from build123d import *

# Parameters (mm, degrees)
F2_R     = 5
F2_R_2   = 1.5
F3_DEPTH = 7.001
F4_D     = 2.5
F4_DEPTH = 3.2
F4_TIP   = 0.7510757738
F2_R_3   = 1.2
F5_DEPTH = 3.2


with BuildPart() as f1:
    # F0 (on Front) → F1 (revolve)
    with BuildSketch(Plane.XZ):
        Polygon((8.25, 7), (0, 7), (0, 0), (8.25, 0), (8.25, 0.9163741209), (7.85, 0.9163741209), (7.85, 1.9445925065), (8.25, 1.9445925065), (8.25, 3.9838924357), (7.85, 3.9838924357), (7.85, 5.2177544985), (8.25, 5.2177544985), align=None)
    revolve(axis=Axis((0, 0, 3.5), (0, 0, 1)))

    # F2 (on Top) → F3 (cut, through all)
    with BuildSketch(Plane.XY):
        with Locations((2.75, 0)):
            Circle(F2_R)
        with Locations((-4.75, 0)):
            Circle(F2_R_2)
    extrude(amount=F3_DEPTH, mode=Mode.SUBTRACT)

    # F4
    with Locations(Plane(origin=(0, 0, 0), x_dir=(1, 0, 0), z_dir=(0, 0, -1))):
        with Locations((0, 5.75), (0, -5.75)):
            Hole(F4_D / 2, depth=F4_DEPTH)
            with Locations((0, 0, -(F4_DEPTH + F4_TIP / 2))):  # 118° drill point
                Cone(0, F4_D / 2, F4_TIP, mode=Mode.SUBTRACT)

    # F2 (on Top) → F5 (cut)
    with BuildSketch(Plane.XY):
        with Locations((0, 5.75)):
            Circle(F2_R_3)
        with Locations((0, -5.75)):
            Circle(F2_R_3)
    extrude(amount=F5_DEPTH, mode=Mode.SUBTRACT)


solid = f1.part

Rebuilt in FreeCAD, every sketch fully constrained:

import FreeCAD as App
import Part
import Sketcher
from FreeCAD import Vector
Q = App.Units.Quantity


def add_polygon(sketch, points):
    """Adds a closed chain of lines whose ends are joined by coincident constraints."""
    first, n = sketch.GeometryCount, len(points)
    for a, b in zip(points, points[1:] + points[:1]):
        sketch.addGeometry(Part.LineSegment(App.Vector(*a, 0), App.Vector(*b, 0)), False)
    for i in range(n):
        sketch.addConstraint(Sketcher.Constraint("Coincident", first + i, 2, first + (i + 1) % n, 1))

doc = App.newDocument("Part")
body = doc.addObject("PartDesign::Body", "Body")

# Sketch on XZ plane
sketch1 = body.newObject("Sketcher::SketchObject", "Sketch")
sketch1.AttachmentSupport = (doc.getObject("XZ_Plane"), [""])
sketch1.MapMode = "FlatFace"
add_polygon(sketch1, [(8.25, 7), (0, 7), (0, 0), (8.25, 0), (8.25, 0.92), (7.85, 0.92), (7.85, 1.94), (8.25, 1.94), (8.25, 3.98), (7.85, 3.98), (7.85, 5.22), (8.25, 5.22)])  # lines 0-11
sketch1.addConstraint([
    Sketcher.Constraint("Horizontal", 0),
    Sketcher.Constraint("Vertical", 1),
    Sketcher.Constraint("Horizontal", 2),
    Sketcher.Constraint("Vertical", 3),
    Sketcher.Constraint("Horizontal", 4),
    Sketcher.Constraint("Vertical", 5),
    Sketcher.Constraint("Horizontal", 6),
    Sketcher.Constraint("Vertical", 7),
    Sketcher.Constraint("Horizontal", 8),
    Sketcher.Constraint("Vertical", 9),
    Sketcher.Constraint("Horizontal", 10),
    Sketcher.Constraint("Vertical", 11),
    Sketcher.Constraint("Coincident", 1, 2, -1, 1),
    Sketcher.Constraint("Vertical", 3, 2, 6, 2),
    Sketcher.Constraint("Vertical", 5, 2, 8, 2),
    Sketcher.Constraint("Vertical", 7, 2, 10, 2),
    Sketcher.Constraint("DistanceY", 1, 2, 1, 1, Q("7 mm")),
    Sketcher.Constraint("DistanceX", 4, 2, 4, 1, Q("0.4 mm")),
    Sketcher.Constraint("DistanceX", 0, 2, 0, 1, Q("8.25 mm")),
    Sketcher.Constraint("DistanceY", 7, 1, 7, 2, Q("2.0393 mm")),
    Sketcher.Constraint("DistanceY", 5, 1, 5, 2, Q("1.028218 mm")),
    Sketcher.Constraint("DistanceY", 3, 1, 3, 2, Q("0.916374 mm")),
    Sketcher.Constraint("DistanceY", 9, 1, 9, 2, Q("1.233862 mm")),
])
revolution = body.newObject("PartDesign::Revolution", "Revolution")
revolution.Profile = sketch1
revolution.ReferenceAxis = (sketch1, ["V_Axis"])
revolution.Angle = 360

# Sketch on XY plane
sketch2 = body.newObject("Sketcher::SketchObject", "Sketch001")
sketch2.AttachmentSupport = (doc.getObject("XY_Plane"), [""])
sketch2.MapMode = "FlatFace"
sketch2.addGeometry([
    Part.Circle(Vector(2.8, 0, 0), Vector(0, 0, 1), 5),
    Part.Circle(Vector(-4.8, 0, 0), Vector(0, 0, 1), 1.5),
], False)
sketch2.addConstraint([
    Sketcher.Constraint("PointOnObject", 0, 3, -1),
    Sketcher.Constraint("PointOnObject", 1, 3, -1),
    Sketcher.Constraint("Diameter", 0, Q("10 mm")),
    Sketcher.Constraint("Diameter", 1, Q("3 mm")),
    Sketcher.Constraint("DistanceX", 1, 3, 0, 3, Q("7.5 mm")),
    Sketcher.Constraint("DistanceX", -1, 1, 0, 3, Q("2.75 mm")),
])
pocket1 = body.newObject("PartDesign::Pocket", "Pocket")
pocket1.Profile = sketch2
pocket1.Type = "ThroughAll"
pocket1.Reversed = True

# Sketch on XY plane
sketch3 = body.newObject("Sketcher::SketchObject", "Sketch002")
sketch3.AttachmentSupport = (doc.getObject("XY_Plane"), [""])
sketch3.MapMode = "FlatFace"
sketch3.addGeometry([
    Part.Circle(Vector(0, -5.8, 0), Vector(0, 0, 1), 1.2),
    Part.Circle(Vector(0, 5.8, 0), Vector(0, 0, 1), 1.2),
], False)
sketch3.addConstraint([
    Sketcher.Constraint("Equal", 0, 1),
    Sketcher.Constraint("Symmetric", 0, 3, 1, 3, -1, 1),
    Sketcher.Constraint("PointOnObject", 0, 3, -2),
    Sketcher.Constraint("Diameter", 0, Q("2.5 mm")),
    Sketcher.Constraint("DistanceY", 0, 3, 1, 3, Q("11.5 mm")),
])
doc.recompute()
hole = body.newObject("PartDesign::Hole", "Hole")
hole.Profile = sketch3
hole.ThreadType = "None"
hole.Diameter = 2.5
hole.DepthType = "Dimension"
hole.Depth = 3.2
hole.DrillPoint = "Angled"
hole.DrillPointAngle = 118
hole.Reversed = True

# Sketch on XY plane
sketch4 = body.newObject("Sketcher::SketchObject", "Sketch003")
sketch4.AttachmentSupport = (doc.getObject("XY_Plane"), [""])
sketch4.MapMode = "FlatFace"
sketch4.addGeometry([
    Part.Circle(Vector(0, 5.8, 0), Vector(0, 0, 1), 1.2),
    Part.Circle(Vector(0, -5.8, 0), Vector(0, 0, 1), 1.2),
], False)
sketch4.addConstraint([
    Sketcher.Constraint("Equal", 0, 1),
    Sketcher.Constraint("Symmetric", 0, 3, 1, 3, -1, 1),
    Sketcher.Constraint("PointOnObject", 0, 3, -2),
    Sketcher.Constraint("Diameter", 0, Q("2.4 mm")),
    Sketcher.Constraint("DistanceY", 1, 3, 0, 3, Q("11.5 mm")),
])
pocket2 = body.newObject("PartDesign::Pocket", "Pocket001")
pocket2.Profile = sketch4
pocket2.Length = 3.2
pocket2.Reversed = True

doc.recompute()
